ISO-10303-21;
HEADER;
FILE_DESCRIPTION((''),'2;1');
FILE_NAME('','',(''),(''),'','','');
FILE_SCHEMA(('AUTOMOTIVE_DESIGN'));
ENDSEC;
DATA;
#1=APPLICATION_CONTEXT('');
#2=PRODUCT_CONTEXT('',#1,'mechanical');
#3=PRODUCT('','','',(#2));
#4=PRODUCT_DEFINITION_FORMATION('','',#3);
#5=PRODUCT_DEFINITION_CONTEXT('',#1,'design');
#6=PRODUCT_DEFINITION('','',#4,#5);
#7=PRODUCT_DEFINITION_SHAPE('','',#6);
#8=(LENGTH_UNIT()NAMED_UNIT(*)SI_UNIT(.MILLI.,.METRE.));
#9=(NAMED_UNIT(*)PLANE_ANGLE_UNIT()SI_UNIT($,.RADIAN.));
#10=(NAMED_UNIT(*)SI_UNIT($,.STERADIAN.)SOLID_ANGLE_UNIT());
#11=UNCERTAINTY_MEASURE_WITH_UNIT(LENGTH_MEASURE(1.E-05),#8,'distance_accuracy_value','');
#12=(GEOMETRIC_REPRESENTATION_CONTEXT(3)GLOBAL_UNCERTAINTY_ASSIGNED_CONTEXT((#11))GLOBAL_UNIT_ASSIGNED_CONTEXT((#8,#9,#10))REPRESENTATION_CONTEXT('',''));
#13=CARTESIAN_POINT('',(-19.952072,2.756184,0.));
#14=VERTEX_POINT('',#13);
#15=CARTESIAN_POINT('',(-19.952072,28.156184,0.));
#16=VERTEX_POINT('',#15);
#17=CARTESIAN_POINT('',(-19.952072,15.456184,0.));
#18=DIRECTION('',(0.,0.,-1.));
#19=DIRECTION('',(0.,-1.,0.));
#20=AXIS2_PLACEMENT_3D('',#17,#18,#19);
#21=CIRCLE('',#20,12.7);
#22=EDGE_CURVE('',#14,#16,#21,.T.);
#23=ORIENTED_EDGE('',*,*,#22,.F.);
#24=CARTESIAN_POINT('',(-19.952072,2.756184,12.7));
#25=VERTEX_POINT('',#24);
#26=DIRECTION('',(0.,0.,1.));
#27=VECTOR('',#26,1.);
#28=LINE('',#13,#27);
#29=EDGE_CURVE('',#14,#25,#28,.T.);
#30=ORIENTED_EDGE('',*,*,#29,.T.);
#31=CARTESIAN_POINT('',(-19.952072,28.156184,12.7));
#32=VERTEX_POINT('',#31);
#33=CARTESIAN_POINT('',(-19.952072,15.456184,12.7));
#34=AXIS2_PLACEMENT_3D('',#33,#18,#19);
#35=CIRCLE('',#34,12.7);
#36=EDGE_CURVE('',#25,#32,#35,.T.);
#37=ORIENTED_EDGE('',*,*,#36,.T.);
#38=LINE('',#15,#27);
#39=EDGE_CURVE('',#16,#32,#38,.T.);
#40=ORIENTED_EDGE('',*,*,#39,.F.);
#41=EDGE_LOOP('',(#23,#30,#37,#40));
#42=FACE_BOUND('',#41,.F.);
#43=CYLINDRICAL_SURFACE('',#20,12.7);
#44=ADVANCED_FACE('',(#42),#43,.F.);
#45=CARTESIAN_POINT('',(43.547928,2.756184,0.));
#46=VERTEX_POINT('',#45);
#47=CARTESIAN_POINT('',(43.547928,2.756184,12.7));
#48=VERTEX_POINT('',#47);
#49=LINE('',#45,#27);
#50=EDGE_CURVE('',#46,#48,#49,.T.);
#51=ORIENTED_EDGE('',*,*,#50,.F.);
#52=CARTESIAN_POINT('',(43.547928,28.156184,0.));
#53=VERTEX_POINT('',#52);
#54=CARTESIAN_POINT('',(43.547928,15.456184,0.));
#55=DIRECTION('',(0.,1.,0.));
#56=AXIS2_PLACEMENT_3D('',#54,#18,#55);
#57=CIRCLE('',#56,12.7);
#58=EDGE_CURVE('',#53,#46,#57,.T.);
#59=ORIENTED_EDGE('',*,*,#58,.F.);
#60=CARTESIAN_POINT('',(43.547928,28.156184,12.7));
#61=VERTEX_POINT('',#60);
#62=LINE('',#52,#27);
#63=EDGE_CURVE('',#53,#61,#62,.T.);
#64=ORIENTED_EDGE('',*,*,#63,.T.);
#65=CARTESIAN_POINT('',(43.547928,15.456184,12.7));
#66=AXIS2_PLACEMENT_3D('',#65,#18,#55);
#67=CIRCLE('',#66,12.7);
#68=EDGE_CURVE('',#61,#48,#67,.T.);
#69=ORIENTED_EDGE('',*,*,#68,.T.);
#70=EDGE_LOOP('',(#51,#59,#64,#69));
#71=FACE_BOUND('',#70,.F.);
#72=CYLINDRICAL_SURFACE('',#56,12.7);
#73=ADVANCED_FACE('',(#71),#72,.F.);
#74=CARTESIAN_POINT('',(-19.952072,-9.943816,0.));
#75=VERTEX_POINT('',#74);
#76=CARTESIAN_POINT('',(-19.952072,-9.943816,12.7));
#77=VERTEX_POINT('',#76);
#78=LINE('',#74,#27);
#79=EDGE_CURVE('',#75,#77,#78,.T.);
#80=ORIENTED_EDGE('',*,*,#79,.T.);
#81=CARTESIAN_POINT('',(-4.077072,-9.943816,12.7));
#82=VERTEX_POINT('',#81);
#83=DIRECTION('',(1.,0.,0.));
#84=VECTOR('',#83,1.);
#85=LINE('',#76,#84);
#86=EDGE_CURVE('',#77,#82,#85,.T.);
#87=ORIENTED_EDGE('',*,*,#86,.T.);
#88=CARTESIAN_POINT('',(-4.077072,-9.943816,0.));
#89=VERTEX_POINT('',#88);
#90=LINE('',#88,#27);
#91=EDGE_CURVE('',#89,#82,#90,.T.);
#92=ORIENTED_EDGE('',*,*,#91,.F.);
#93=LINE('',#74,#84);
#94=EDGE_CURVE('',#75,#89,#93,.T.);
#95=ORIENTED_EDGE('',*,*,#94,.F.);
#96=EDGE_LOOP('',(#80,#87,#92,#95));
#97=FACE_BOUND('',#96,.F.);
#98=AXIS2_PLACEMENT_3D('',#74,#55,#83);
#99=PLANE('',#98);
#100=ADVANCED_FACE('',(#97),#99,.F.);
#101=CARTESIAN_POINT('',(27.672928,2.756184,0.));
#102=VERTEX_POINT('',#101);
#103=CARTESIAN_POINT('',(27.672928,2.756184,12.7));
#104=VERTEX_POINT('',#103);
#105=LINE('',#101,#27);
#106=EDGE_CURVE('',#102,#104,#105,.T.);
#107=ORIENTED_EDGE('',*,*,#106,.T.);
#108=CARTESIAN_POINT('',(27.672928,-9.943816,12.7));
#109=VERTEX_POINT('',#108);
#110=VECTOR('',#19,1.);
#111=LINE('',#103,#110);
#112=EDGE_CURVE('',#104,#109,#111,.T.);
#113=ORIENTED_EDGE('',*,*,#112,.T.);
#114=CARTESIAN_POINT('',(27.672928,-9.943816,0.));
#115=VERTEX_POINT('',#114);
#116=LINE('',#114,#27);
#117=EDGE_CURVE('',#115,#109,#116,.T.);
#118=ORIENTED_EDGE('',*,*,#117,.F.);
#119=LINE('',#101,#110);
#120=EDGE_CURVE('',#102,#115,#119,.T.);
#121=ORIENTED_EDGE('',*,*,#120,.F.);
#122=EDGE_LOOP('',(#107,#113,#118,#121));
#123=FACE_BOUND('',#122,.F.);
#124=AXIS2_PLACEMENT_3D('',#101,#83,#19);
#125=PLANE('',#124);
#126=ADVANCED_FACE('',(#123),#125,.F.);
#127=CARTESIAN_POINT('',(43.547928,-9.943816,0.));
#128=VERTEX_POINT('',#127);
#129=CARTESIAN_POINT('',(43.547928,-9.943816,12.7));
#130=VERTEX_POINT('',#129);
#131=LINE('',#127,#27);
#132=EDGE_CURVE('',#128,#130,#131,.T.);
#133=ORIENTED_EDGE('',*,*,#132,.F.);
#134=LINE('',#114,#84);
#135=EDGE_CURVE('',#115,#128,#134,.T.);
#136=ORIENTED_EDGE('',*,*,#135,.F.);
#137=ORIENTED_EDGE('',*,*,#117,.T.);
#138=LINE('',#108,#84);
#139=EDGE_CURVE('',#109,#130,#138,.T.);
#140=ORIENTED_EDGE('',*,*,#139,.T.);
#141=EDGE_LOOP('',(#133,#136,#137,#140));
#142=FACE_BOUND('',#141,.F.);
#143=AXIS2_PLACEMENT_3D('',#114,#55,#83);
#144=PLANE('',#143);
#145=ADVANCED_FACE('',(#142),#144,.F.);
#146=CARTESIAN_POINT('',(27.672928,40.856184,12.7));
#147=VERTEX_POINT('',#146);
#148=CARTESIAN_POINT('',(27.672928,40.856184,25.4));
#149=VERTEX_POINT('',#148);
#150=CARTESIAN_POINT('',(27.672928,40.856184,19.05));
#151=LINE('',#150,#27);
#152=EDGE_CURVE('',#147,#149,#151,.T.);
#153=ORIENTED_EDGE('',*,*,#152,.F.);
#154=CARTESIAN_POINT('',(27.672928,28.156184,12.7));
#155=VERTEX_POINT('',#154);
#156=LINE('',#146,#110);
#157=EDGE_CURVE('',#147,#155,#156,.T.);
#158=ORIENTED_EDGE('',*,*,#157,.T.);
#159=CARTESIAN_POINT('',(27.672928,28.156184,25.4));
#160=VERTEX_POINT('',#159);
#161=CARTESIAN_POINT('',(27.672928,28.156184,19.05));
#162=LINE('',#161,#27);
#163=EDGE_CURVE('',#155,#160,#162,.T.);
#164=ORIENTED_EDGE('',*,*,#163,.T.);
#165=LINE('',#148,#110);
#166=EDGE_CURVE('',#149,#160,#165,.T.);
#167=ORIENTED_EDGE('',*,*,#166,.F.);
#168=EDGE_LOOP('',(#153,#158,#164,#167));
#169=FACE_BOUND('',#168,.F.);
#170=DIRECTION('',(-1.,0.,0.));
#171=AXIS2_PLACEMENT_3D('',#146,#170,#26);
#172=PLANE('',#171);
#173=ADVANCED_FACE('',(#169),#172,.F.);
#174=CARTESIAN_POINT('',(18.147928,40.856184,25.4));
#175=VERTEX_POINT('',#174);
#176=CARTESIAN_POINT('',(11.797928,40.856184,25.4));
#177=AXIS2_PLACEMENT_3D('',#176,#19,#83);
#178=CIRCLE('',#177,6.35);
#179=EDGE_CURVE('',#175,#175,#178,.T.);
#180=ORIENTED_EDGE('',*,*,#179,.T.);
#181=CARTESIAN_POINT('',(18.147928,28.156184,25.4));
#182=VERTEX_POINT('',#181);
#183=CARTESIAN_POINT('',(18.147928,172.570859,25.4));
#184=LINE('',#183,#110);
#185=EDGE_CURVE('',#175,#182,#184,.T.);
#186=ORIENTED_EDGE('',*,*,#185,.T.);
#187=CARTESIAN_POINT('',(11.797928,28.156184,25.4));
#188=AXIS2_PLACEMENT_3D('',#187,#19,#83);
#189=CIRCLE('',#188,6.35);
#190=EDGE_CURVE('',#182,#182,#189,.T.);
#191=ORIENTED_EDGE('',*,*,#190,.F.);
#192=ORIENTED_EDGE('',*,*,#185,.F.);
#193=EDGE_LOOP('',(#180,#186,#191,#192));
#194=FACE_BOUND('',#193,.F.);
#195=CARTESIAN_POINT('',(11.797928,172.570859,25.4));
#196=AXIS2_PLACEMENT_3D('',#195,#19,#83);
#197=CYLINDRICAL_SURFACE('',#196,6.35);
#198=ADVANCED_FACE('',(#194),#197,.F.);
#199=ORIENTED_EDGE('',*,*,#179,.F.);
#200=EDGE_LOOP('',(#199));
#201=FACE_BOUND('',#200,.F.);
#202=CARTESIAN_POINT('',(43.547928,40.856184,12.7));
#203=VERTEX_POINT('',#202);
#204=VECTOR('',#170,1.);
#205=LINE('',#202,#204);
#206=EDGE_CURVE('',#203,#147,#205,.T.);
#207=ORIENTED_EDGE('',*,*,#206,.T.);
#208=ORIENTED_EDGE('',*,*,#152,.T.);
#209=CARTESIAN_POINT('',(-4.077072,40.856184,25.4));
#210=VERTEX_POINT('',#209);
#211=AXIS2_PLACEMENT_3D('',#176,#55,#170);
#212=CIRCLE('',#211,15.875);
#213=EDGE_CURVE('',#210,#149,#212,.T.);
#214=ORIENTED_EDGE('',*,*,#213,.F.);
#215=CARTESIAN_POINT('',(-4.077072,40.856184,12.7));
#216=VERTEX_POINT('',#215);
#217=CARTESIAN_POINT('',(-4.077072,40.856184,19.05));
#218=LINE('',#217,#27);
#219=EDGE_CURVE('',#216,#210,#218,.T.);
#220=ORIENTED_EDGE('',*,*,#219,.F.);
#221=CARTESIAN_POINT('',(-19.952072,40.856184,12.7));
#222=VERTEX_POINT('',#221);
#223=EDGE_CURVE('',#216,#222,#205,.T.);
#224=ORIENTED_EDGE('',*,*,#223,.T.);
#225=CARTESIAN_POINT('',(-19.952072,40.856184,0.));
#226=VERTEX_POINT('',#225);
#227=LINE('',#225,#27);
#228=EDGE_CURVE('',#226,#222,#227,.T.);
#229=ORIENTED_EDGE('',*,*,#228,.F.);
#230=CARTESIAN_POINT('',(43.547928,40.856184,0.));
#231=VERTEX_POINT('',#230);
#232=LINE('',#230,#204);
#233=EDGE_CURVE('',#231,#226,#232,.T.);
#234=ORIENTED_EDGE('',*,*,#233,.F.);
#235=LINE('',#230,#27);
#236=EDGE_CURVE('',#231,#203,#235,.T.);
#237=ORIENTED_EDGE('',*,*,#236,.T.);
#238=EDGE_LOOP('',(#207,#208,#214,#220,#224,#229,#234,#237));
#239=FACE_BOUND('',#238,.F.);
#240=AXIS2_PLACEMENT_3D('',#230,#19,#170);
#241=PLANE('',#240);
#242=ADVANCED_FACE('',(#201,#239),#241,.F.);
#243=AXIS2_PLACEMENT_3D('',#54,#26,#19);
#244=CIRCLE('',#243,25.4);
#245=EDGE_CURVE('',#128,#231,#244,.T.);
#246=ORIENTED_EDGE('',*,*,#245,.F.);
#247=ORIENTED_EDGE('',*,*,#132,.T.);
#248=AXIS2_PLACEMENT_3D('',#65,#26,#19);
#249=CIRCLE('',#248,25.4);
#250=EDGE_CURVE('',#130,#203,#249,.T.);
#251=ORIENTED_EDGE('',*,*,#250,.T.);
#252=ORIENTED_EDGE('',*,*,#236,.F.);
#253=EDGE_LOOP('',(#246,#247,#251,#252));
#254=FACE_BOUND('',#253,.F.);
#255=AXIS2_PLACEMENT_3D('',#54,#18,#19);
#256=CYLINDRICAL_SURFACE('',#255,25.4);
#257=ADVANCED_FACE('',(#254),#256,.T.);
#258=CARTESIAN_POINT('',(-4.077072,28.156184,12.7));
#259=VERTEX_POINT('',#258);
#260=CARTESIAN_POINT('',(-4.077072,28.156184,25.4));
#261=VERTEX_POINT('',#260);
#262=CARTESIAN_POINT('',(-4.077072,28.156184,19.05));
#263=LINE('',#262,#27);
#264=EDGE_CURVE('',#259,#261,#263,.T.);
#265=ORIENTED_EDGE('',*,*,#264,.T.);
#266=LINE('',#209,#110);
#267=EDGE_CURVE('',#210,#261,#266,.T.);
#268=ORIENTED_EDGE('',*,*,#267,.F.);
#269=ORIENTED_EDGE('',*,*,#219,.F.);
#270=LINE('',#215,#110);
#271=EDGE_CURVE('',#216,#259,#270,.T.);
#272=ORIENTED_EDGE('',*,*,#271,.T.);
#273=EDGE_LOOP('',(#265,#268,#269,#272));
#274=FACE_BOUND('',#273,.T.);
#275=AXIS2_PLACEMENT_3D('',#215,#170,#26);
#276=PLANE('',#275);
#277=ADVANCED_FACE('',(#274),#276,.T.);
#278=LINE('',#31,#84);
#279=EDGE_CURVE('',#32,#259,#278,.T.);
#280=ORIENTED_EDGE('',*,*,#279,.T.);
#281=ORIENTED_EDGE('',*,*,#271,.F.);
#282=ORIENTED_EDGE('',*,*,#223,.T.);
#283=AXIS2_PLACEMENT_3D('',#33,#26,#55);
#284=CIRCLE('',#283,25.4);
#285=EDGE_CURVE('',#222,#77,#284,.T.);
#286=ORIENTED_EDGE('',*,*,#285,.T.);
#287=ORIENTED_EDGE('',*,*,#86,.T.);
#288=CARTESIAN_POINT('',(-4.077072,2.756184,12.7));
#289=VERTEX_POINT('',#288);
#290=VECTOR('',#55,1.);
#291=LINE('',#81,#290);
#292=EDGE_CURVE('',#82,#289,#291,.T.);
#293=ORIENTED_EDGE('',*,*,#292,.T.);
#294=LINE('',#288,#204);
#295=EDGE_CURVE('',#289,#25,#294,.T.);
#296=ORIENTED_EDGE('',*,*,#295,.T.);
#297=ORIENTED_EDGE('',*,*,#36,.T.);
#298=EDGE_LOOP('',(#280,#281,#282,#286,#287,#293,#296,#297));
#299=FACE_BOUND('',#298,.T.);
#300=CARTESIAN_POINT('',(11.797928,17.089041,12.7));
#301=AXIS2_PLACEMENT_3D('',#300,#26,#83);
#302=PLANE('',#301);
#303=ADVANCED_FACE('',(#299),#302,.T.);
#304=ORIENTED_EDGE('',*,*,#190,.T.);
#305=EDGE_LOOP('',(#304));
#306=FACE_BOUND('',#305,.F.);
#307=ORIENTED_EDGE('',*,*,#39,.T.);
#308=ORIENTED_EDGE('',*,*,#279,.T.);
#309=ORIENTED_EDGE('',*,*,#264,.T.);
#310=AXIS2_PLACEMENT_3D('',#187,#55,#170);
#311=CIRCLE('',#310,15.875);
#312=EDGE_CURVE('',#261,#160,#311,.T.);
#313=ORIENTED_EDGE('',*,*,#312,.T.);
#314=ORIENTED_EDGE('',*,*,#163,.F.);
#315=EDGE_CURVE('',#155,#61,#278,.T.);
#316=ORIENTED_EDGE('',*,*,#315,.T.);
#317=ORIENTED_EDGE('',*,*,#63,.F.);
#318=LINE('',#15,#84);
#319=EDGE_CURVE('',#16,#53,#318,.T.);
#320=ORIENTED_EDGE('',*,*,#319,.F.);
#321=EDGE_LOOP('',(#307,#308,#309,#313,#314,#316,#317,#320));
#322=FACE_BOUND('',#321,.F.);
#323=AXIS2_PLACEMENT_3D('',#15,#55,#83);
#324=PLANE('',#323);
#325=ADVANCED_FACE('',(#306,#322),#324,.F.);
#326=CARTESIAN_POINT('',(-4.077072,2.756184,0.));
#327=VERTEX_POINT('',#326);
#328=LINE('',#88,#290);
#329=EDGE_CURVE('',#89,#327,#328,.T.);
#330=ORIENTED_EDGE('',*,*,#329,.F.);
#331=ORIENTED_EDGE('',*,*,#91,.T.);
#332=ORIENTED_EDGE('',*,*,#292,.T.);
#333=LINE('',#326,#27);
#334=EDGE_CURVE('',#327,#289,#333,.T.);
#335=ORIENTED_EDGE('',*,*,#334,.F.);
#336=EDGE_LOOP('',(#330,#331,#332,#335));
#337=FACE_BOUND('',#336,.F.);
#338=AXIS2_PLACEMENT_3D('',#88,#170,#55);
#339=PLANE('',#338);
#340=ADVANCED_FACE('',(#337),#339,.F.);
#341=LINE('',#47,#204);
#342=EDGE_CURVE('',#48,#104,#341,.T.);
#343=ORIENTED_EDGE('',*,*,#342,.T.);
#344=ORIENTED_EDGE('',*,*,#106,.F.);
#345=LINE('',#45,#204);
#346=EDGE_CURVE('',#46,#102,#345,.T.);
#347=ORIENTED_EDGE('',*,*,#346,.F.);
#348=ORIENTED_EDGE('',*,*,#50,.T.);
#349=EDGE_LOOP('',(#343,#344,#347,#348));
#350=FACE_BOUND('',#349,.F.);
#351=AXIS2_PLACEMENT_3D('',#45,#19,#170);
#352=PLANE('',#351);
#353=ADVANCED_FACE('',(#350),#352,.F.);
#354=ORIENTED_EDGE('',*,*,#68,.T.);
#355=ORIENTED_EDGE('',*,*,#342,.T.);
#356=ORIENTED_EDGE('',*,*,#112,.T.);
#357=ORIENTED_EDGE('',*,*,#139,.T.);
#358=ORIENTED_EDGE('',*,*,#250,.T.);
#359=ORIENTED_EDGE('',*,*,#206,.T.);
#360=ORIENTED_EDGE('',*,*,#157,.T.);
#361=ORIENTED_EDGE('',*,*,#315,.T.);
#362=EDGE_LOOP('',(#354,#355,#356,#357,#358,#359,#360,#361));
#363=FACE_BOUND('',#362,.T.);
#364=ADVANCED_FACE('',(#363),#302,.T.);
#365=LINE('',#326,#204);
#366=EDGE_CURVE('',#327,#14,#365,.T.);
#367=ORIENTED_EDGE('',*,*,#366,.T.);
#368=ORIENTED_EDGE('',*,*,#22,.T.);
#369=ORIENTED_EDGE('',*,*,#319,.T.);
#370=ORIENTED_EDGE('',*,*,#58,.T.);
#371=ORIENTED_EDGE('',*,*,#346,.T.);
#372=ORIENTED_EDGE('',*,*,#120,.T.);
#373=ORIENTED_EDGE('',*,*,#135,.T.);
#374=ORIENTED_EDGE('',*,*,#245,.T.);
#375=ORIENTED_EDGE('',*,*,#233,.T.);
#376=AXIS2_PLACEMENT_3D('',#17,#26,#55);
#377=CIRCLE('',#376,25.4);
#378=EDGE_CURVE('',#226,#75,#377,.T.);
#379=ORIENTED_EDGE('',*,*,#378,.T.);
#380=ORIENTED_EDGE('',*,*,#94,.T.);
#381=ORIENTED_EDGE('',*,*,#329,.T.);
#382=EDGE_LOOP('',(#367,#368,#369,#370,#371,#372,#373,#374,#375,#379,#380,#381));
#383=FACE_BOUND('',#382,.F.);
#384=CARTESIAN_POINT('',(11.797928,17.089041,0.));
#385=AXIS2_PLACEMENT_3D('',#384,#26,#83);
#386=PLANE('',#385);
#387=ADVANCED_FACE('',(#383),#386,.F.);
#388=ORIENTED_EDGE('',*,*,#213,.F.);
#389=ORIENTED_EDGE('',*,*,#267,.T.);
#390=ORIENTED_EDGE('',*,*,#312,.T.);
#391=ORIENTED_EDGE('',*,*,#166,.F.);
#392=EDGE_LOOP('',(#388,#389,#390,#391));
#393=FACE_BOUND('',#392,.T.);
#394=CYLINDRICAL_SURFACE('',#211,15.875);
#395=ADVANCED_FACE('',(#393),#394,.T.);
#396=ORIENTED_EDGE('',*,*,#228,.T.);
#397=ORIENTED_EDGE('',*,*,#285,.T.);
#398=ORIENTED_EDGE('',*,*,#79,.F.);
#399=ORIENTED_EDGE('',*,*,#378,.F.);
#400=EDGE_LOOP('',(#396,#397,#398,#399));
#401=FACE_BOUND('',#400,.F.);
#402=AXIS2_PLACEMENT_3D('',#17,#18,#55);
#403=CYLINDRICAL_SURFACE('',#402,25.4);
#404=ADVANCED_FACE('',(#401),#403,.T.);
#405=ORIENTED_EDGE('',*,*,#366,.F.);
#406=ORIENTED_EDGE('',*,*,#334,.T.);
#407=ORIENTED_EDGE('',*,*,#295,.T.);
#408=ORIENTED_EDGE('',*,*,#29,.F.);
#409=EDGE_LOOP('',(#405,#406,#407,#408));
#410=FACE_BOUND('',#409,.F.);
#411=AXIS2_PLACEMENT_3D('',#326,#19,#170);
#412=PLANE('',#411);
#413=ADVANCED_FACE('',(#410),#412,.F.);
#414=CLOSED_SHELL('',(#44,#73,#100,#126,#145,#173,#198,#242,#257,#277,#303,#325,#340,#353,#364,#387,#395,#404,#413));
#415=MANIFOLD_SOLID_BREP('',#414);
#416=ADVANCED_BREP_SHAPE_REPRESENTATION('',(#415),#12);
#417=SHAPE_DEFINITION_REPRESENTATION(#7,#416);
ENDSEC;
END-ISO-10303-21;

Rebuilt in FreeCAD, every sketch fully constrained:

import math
import FreeCAD as App
import Part
import Sketcher
Q = App.Units.Quantity

doc = App.newDocument("Part")
body = doc.addObject("PartDesign::Body", "Body")

# Sketch on XY plane
sketch1 = body.newObject("Sketcher::SketchObject", "Sketch")
sketch1.AttachmentSupport = (doc.getObject("XY_Plane"), [""])
sketch1.MapMode = "FlatFace"
sketch1.addGeometry([
    Part.LineSegment(App.Vector(44, 3, 0), App.Vector(28, 3, 0)),  # 0
    Part.LineSegment(App.Vector(28, 3, 0), App.Vector(28, -10, 0)),  # 1
    Part.LineSegment(App.Vector(28, -10, 0), App.Vector(44, -10, 0)),  # 2
    Part.ArcOfCircle(Part.Circle(App.Vector(44, 15, 0), App.Vector(0, 0, 1), 25), math.radians(-90), math.radians(90)),  # 3
    Part.LineSegment(App.Vector(44, 41, 0), App.Vector(-20, 41, 0)),  # 4
    Part.ArcOfCircle(Part.Circle(App.Vector(-20, 15, 0), App.Vector(0, 0, 1), 25), math.radians(90), math.radians(270)),  # 5
    Part.LineSegment(App.Vector(-20, -10, 0), App.Vector(-4, -10, 0)),  # 6
    Part.LineSegment(App.Vector(-4, -10, 0), App.Vector(-4, 3, 0)),  # 7
    Part.LineSegment(App.Vector(-4, 3, 0), App.Vector(-20, 3, 0)),  # 8
    Part.ArcOfCircle(Part.Circle(App.Vector(-20, 15, 0), App.Vector(0, 0, 1), 13), math.radians(90), math.radians(270)),  # 9
    Part.LineSegment(App.Vector(-20, 28, 0), App.Vector(44, 28, 0)),  # 10
    Part.ArcOfCircle(Part.Circle(App.Vector(44, 15, 0), App.Vector(0, 0, 1), 13), math.radians(-90), math.radians(90)),  # 11
], False)
sketch1.addConstraint([
    Sketcher.Constraint("Coincident", 0, 2, 1, 1),
    Sketcher.Constraint("Coincident", 1, 2, 2, 1),
    Sketcher.Constraint("Tangent", 2, 2, 3, 1),
    Sketcher.Constraint("Tangent", 3, 2, 4, 1),
    Sketcher.Constraint("Tangent", 4, 2, 5, 1),
    Sketcher.Constraint("Tangent", 5, 2, 6, 1),
    Sketcher.Constraint("Coincident", 6, 2, 7, 1),
    Sketcher.Constraint("Coincident", 7, 2, 8, 1),
    Sketcher.Constraint("Tangent", 8, 2, 9, 2),
    Sketcher.Constraint("Tangent", 9, 1, 10, 1),
    Sketcher.Constraint("Tangent", 10, 2, 11, 2),
    Sketcher.Constraint("Tangent", 11, 1, 0, 1),
    Sketcher.Constraint("Horizontal", 0),
    Sketcher.Constraint("Vertical", 1),
    Sketcher.Constraint("Horizontal", 2),
    Sketcher.Constraint("Horizontal", 4),
    Sketcher.Constraint("Horizontal", 6),
    Sketcher.Constraint("Vertical", 7),
    Sketcher.Constraint("Horizontal", 8),
    Sketcher.Constraint("Horizontal", 10),
    Sketcher.Constraint("Coincident", 9, 3, 5, 3),
    Sketcher.Constraint("Coincident", 11, 3, 3, 3),
    Sketcher.Constraint("Equal", 3, 5),
    Sketcher.Constraint("Equal", 2, 6),
    Sketcher.Constraint("Radius", 3, Q("1 in")),
    Sketcher.Constraint("Radius", 9, Q("0.5 in")),
    Sketcher.Constraint("DistanceX", 4, 2, 4, 1, Q("2.5 in")),
    Sketcher.Constraint("DistanceX", 0, 2, 0, 1, Q("0.625 in")),
    Sketcher.Constraint("DistanceX", -1, 1, 3, 3, Q("43.547928 mm")),
    Sketcher.Constraint("DistanceY", -1, 1, 3, 3, Q("15.456184 mm")),
])
pad1 = body.newObject("PartDesign::Pad", "Pad")
pad1.Profile = sketch1
pad1.Length = Q("0.5 in")

# Sketch on XZ plane
sketch2 = body.newObject("Sketcher::SketchObject", "Sketch001")
sketch2.AttachmentSupport = (doc.getObject("XZ_Plane"), [""])
sketch2.MapMode = "FlatFace"
sketch2.AttachmentOffset = App.Placement(App.Vector(0, 0, -40.856184), App.Rotation())
sketch2.addGeometry([
    Part.LineSegment(App.Vector(28, 25, 0), App.Vector(28, 13, 0)),
    Part.LineSegment(App.Vector(28, 13, 0), App.Vector(-4, 13, 0)),
    Part.LineSegment(App.Vector(-4, 13, 0), App.Vector(-4, 25, 0)),
    Part.ArcOfCircle(Part.Circle(App.Vector(12, 25, 0), App.Vector(0, 0, 1), 16), math.radians(0), math.radians(180)),
], False)
sketch2.addConstraint([
    Sketcher.Constraint("Coincident", 0, 2, 1, 1),
    Sketcher.Constraint("Coincident", 1, 2, 2, 1),
    Sketcher.Constraint("Tangent", 2, 2, 3, 2),
    Sketcher.Constraint("Tangent", 3, 1, 0, 1),
    Sketcher.Constraint("Vertical", 0),
    Sketcher.Constraint("Horizontal", 1),
    Sketcher.Constraint("Vertical", 2),
    Sketcher.Constraint("DistanceY", 0, 2, 0, 1, Q("0.5 in")),
    Sketcher.Constraint("DistanceY", -1, 1, 3, 3, Q("1 in")),
    Sketcher.Constraint("Radius", 3, Q("0.625 in")),
    Sketcher.Constraint("DistanceX", -1, 1, 3, 3, Q("11.797928 mm")),
])
pad2 = body.newObject("PartDesign::Pad", "Pad001")
pad2.Profile = sketch2
pad2.Length = Q("0.5 in")

# Sketch on XZ plane
sketch3 = body.newObject("Sketcher::SketchObject", "Sketch002")
sketch3.AttachmentSupport = (doc.getObject("XZ_Plane"), [""])
sketch3.MapMode = "FlatFace"
sketch3.AttachmentOffset = App.Placement(App.Vector(0, 0, -40.856184), App.Rotation())
sketch3.addGeometry(Part.Circle(App.Vector(12, 25, 0), App.Vector(0, 0, 1), 6), False)
sketch3.addConstraint([
    Sketcher.Constraint("Diameter", 0, Q("0.5 in")),
    Sketcher.Constraint("DistanceY", -1, 1, 0, 3, Q("1 in")),
    Sketcher.Constraint("DistanceX", -1, 1, 0, 3, Q("11.797928 mm")),
])
doc.recompute()
hole = body.newObject("PartDesign::Hole", "Hole")
hole.Profile = sketch3
hole.ThreadType = "None"
hole.Diameter = Q("0.5 in")
hole.DepthType = "ThroughAll"
hole.Reversed = True

doc.recompute()
